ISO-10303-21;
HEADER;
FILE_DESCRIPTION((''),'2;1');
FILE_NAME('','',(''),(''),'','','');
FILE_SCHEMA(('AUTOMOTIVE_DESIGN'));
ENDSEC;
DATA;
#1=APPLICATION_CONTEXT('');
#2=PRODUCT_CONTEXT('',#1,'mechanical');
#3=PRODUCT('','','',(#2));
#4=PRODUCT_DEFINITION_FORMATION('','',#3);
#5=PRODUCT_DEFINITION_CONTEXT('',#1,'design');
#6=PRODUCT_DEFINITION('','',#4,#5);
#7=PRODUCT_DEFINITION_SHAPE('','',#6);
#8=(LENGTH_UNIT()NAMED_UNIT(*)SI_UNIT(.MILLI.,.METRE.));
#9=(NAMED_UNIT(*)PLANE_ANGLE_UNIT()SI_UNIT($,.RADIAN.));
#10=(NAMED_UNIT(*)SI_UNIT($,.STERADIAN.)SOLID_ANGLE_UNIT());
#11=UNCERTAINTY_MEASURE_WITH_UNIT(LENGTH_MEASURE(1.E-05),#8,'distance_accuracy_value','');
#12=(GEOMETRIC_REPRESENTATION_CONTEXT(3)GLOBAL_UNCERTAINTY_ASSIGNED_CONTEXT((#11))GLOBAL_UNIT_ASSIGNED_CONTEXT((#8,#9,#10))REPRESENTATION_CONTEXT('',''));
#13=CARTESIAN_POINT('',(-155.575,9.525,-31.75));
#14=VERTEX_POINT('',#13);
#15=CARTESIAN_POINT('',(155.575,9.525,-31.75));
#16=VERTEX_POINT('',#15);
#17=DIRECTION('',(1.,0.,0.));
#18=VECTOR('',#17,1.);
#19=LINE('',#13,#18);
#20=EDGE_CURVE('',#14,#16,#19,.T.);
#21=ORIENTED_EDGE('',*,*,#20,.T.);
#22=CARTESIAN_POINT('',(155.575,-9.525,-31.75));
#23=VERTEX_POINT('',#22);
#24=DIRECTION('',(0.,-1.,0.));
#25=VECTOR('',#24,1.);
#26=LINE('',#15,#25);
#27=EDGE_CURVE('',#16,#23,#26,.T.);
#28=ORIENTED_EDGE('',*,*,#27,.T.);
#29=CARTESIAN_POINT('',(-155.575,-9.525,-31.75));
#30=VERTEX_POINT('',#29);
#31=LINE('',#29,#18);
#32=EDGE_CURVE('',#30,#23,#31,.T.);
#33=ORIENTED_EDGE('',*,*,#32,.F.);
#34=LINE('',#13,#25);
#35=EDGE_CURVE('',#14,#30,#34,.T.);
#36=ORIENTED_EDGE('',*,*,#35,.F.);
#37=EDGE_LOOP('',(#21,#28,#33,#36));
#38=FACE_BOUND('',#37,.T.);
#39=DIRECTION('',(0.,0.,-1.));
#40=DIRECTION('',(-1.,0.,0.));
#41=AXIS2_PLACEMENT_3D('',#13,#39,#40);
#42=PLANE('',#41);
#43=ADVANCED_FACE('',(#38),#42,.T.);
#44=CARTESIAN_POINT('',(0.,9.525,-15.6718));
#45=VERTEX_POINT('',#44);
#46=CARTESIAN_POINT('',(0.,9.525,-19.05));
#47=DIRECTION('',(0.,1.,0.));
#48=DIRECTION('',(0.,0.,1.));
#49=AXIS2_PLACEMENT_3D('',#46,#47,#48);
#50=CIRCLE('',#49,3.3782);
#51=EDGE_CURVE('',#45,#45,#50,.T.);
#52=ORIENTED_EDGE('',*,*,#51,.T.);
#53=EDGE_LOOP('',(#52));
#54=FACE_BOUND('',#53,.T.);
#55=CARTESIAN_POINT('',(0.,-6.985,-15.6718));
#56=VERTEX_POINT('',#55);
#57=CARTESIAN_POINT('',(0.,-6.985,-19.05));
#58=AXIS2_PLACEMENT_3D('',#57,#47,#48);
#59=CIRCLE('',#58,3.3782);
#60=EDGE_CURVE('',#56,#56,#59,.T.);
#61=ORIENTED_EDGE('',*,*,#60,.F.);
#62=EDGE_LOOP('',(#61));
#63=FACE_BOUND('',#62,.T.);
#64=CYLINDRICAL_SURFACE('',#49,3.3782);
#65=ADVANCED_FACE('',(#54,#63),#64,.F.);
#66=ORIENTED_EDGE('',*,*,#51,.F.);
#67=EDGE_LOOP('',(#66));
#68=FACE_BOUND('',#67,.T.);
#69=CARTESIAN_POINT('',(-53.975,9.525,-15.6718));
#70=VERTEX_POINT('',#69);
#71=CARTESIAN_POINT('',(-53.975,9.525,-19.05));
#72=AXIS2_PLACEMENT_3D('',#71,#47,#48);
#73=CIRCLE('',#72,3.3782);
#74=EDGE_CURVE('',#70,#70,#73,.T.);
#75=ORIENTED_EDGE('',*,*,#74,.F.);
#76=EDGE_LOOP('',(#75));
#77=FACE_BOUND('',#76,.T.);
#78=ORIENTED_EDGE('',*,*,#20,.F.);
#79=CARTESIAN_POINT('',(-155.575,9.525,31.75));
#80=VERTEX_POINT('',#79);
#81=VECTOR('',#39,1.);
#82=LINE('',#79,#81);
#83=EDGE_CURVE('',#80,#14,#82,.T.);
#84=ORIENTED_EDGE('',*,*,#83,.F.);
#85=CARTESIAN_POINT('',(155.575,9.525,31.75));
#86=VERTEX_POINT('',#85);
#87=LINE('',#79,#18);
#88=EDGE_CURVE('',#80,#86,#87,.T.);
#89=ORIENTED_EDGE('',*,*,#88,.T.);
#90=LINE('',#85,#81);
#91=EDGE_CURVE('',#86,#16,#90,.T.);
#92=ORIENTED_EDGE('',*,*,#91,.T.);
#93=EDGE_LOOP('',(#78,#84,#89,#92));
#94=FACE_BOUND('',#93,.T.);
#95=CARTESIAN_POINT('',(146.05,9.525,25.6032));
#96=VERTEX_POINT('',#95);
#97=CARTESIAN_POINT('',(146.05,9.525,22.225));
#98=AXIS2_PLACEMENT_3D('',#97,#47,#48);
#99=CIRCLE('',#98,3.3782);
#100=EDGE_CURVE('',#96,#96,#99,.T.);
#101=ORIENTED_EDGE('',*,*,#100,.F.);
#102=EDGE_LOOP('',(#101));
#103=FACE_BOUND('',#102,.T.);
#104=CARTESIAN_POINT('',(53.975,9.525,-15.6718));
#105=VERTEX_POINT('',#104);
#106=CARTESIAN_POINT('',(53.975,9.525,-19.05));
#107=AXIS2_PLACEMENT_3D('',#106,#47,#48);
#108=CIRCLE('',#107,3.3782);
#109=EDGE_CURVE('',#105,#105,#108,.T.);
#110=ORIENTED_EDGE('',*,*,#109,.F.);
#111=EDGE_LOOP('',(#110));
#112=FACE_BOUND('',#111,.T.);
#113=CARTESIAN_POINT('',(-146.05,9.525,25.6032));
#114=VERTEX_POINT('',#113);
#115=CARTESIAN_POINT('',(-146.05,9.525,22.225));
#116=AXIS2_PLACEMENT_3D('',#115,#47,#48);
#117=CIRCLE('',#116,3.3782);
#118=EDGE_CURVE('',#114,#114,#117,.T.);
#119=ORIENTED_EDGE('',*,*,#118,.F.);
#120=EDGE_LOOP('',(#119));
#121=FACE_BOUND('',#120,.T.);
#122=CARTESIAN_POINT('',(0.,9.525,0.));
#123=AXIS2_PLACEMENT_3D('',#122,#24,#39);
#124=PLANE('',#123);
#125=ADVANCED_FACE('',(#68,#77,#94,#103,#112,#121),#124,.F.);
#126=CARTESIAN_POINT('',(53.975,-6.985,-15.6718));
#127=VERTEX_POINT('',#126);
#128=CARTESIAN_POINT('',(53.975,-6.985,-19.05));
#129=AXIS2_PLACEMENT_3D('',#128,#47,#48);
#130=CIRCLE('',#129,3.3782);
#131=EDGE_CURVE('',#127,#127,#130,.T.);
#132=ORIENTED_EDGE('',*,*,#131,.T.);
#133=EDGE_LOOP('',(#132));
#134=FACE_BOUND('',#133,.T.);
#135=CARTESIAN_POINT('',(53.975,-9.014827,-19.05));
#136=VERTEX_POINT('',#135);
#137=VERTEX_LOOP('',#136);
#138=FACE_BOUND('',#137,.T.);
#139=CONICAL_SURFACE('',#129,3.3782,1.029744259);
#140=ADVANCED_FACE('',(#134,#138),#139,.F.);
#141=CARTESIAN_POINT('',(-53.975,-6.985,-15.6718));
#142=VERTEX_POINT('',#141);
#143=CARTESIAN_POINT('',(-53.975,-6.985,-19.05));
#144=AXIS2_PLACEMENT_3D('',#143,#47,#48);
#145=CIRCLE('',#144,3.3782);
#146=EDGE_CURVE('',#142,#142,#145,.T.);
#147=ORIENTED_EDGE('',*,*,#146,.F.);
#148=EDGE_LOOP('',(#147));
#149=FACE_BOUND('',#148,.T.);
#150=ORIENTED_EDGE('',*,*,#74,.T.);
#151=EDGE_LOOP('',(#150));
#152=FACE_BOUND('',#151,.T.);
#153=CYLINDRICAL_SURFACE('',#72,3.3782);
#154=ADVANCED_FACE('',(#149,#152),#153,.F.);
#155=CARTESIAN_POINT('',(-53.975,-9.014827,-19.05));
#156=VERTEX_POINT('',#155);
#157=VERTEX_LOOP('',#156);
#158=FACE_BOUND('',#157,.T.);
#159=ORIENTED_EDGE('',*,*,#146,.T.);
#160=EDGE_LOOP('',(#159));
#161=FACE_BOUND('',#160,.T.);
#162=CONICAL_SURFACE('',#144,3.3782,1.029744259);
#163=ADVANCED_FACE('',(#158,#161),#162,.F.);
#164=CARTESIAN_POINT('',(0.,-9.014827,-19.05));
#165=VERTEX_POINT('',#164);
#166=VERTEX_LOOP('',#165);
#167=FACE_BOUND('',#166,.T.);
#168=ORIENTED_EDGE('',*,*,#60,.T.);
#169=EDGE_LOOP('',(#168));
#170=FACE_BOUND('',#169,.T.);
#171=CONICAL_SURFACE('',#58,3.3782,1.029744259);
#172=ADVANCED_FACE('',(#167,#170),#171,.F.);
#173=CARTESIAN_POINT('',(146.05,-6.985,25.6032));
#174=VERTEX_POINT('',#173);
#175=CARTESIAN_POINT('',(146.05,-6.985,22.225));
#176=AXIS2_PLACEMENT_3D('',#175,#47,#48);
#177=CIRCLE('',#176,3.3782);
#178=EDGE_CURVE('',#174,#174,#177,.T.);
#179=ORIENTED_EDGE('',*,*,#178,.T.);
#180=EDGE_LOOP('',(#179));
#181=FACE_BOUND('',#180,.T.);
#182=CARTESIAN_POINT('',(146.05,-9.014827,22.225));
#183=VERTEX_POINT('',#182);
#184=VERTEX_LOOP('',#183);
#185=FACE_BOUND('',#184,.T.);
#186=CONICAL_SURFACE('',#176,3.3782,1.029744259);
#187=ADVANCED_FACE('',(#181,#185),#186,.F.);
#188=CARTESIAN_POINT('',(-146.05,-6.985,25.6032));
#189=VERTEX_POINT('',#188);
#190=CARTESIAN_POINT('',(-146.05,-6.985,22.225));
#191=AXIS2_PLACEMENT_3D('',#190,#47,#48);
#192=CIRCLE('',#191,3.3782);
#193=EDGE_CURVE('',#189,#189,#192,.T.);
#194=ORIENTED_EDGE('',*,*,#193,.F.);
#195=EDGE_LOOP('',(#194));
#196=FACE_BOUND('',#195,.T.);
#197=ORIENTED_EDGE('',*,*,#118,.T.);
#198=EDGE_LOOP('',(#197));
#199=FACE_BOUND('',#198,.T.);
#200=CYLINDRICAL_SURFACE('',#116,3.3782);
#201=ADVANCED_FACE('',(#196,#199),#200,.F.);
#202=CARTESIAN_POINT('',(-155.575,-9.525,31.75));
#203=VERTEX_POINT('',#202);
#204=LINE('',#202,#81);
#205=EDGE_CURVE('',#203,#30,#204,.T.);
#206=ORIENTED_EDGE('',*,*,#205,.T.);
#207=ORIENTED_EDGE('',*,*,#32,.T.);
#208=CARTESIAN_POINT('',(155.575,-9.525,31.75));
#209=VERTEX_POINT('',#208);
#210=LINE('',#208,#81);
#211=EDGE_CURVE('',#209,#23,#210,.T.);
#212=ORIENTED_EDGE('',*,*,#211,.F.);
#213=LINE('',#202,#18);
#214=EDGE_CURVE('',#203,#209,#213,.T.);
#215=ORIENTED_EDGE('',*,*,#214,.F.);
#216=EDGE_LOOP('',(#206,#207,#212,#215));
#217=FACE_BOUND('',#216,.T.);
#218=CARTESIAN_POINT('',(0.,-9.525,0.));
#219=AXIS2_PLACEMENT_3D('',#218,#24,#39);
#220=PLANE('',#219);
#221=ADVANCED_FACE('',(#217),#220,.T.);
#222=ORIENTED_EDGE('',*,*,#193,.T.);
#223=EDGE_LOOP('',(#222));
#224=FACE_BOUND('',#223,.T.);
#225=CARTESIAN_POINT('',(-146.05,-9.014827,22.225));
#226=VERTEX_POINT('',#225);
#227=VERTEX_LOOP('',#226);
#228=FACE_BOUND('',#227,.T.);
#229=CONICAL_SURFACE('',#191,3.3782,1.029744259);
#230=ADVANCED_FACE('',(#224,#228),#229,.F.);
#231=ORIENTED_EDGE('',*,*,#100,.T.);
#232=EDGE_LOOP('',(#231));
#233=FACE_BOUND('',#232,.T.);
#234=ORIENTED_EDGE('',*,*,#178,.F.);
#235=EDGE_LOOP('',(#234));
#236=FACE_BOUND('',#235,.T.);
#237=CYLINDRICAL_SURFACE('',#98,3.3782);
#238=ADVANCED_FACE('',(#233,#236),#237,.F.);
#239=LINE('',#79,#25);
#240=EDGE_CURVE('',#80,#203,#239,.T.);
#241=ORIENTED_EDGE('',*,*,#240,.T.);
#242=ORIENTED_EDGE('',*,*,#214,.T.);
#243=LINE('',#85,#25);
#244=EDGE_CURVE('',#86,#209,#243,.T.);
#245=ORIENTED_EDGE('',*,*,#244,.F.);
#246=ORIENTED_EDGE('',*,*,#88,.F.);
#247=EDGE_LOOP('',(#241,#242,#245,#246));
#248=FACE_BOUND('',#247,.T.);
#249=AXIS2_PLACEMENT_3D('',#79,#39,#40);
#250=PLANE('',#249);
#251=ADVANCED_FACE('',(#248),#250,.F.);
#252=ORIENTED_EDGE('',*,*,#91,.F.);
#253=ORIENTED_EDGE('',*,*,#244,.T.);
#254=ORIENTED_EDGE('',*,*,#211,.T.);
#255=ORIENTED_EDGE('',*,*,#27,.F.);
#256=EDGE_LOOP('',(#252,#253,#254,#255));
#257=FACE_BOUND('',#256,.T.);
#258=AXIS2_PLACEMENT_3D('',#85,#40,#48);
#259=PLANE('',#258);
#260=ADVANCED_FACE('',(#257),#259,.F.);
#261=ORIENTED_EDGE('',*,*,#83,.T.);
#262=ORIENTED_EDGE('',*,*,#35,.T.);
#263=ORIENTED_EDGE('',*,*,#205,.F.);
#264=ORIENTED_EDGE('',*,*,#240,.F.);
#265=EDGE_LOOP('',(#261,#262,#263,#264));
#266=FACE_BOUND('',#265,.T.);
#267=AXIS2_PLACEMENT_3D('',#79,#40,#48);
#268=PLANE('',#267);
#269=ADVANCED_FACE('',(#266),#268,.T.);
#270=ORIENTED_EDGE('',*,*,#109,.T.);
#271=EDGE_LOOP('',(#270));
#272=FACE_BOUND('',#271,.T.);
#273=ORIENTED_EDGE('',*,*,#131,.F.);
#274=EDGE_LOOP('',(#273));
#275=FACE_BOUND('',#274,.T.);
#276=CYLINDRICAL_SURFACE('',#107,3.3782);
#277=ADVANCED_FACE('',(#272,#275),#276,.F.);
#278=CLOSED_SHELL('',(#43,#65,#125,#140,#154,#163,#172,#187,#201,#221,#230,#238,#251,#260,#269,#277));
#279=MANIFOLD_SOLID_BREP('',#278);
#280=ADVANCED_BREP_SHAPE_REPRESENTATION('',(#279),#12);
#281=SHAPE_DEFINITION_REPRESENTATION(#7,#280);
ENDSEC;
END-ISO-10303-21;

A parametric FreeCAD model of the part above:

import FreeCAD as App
import Part
import Sketcher
from FreeCAD import Vector
Q = App.Units.Quantity

doc = App.newDocument("Part")
params = doc.addObject("Spreadsheet::Sheet", "Params")
for row, (alias, value) in enumerate([
    ("sketch1_height", "2.5 in"),
    ("sketch1_width", "12.25 in"),
    ("pad1_length", "0.75 in"),
    ("sketch2_diameter", "0.266 in"),
    ("hole_diameter", "0.266 in"),
    ("hole_depth", "0.65 in"),
], start=1):
    params.set(f"A{row}", alias)
    params.set(f"B{row}", "=" + value)
    params.setAlias(f"B{row}", alias)

body = doc.addObject("PartDesign::Body", "Body")

# Sketch on XZ plane
sketch1 = body.newObject("Sketcher::SketchObject", "Sketch")
sketch1.AttachmentSupport = (doc.getObject("XZ_Plane"), [""])
sketch1.MapMode = "FlatFace"
sketch1.addGeometry([
    Part.LineSegment(Vector(-155.575, -31.75, 0), Vector(-155.575, 31.75, 0)),
    Part.LineSegment(Vector(-155.575, 31.75, 0), Vector(155.575, 31.75, 0)),
    Part.LineSegment(Vector(155.575, 31.75, 0), Vector(155.575, -31.75, 0)),
    Part.LineSegment(Vector(155.575, -31.75, 0), Vector(-155.575, -31.75, 0)),
], False)
sketch1.addConstraint([
    Sketcher.Constraint("Coincident", 0, 2, 1, 1),
    Sketcher.Constraint("Coincident", 1, 2, 2, 1),
    Sketcher.Constraint("Coincident", 2, 2, 3, 1),
    Sketcher.Constraint("Coincident", 3, 2, 0, 1),
    Sketcher.Constraint("Vertical", 0),
    Sketcher.Constraint("Horizontal", 1),
    Sketcher.Constraint("Vertical", 2),
    Sketcher.Constraint("Horizontal", 3),
    Sketcher.Constraint("Symmetric", 0, 2, 2, 2, -1, 1),
    Sketcher.Constraint("DistanceY", 0, 1, 0, 2, Q("2.5 in")),
    Sketcher.Constraint("DistanceX", 1, 1, 1, 2, Q("12.25 in")),
])
sketch1.setExpression("Constraints[9]", "Params.sketch1_height")
sketch1.setExpression("Constraints[10]", "Params.sketch1_width")
pad1 = body.newObject("PartDesign::Pad", "Pad")
pad1.Profile = sketch1
pad1.setExpression("Length", "Params.pad1_length")
pad1.Midplane = True

# Sketch on XZ plane
sketch2 = body.newObject("Sketcher::SketchObject", "Sketch001")
sketch2.AttachmentSupport = (doc.getObject("XZ_Plane"), [""])
sketch2.MapMode = "FlatFace"
sketch2.AttachmentOffset = App.Placement(Vector(0, 0, -0.375 * 25.4), App.Rotation())
sketch2.addGeometry([
    Part.Circle(Vector(-53.975, -19.05, 0), Vector(0, 0, 1), 3.3782),  # 0
    Part.Circle(Vector(0, -19.05, 0), Vector(0, 0, 1), 3.3782),  # 1
    Part.Circle(Vector(53.975, -19.05, 0), Vector(0, 0, 1), 3.3782),  # 2
    Part.Circle(Vector(146.05, 22.225, 0), Vector(0, 0, 1), 3.3782),  # 3
    Part.Circle(Vector(-146.05, 22.225, 0), Vector(0, 0, 1), 3.3782),  # 4
], False)
sketch2.addConstraint([
    Sketcher.Constraint("Equal", 0, 1),
    Sketcher.Constraint("Equal", 1, 2),
    Sketcher.Constraint("Equal", 2, 3),
    Sketcher.Constraint("Equal", 3, 4),
    Sketcher.Constraint("Symmetric", 0, 3, 2, 3, -2),
    Sketcher.Constraint("Symmetric", 3, 3, 4, 3, -2),
    Sketcher.Constraint("PointOnObject", 1, 3, -2),
    Sketcher.Constraint("Horizontal", 0, 3, 1, 3),
    Sketcher.Constraint("Diameter", 0, Q("0.266 in")),
    Sketcher.Constraint("DistanceX", 4, 3, 3, 3, Q("11.5 in")),
    Sketcher.Constraint("DistanceY", 0, 3, -1, 1, Q("0.75 in")),
    Sketcher.Constraint("DistanceX", 0, 3, 2, 3, Q("4.25 in")),
    Sketcher.Constraint("DistanceY", -1, 1, 3, 3, Q("0.875 in")),
])
sketch2.setExpression("Constraints[8]", "Params.sketch2_diameter")
doc.recompute()
hole = body.newObject("PartDesign::Hole", "Hole")
hole.Profile = sketch2
hole.ThreadType = "None"
hole.setExpression("Diameter", "Params.hole_diameter")
hole.DepthType = "Dimension"
hole.setExpression("Depth", "Params.hole_depth")
hole.DrillPoint = "Angled"
hole.DrillPointAngle = 118
hole.Reversed = True

doc.recompute()
